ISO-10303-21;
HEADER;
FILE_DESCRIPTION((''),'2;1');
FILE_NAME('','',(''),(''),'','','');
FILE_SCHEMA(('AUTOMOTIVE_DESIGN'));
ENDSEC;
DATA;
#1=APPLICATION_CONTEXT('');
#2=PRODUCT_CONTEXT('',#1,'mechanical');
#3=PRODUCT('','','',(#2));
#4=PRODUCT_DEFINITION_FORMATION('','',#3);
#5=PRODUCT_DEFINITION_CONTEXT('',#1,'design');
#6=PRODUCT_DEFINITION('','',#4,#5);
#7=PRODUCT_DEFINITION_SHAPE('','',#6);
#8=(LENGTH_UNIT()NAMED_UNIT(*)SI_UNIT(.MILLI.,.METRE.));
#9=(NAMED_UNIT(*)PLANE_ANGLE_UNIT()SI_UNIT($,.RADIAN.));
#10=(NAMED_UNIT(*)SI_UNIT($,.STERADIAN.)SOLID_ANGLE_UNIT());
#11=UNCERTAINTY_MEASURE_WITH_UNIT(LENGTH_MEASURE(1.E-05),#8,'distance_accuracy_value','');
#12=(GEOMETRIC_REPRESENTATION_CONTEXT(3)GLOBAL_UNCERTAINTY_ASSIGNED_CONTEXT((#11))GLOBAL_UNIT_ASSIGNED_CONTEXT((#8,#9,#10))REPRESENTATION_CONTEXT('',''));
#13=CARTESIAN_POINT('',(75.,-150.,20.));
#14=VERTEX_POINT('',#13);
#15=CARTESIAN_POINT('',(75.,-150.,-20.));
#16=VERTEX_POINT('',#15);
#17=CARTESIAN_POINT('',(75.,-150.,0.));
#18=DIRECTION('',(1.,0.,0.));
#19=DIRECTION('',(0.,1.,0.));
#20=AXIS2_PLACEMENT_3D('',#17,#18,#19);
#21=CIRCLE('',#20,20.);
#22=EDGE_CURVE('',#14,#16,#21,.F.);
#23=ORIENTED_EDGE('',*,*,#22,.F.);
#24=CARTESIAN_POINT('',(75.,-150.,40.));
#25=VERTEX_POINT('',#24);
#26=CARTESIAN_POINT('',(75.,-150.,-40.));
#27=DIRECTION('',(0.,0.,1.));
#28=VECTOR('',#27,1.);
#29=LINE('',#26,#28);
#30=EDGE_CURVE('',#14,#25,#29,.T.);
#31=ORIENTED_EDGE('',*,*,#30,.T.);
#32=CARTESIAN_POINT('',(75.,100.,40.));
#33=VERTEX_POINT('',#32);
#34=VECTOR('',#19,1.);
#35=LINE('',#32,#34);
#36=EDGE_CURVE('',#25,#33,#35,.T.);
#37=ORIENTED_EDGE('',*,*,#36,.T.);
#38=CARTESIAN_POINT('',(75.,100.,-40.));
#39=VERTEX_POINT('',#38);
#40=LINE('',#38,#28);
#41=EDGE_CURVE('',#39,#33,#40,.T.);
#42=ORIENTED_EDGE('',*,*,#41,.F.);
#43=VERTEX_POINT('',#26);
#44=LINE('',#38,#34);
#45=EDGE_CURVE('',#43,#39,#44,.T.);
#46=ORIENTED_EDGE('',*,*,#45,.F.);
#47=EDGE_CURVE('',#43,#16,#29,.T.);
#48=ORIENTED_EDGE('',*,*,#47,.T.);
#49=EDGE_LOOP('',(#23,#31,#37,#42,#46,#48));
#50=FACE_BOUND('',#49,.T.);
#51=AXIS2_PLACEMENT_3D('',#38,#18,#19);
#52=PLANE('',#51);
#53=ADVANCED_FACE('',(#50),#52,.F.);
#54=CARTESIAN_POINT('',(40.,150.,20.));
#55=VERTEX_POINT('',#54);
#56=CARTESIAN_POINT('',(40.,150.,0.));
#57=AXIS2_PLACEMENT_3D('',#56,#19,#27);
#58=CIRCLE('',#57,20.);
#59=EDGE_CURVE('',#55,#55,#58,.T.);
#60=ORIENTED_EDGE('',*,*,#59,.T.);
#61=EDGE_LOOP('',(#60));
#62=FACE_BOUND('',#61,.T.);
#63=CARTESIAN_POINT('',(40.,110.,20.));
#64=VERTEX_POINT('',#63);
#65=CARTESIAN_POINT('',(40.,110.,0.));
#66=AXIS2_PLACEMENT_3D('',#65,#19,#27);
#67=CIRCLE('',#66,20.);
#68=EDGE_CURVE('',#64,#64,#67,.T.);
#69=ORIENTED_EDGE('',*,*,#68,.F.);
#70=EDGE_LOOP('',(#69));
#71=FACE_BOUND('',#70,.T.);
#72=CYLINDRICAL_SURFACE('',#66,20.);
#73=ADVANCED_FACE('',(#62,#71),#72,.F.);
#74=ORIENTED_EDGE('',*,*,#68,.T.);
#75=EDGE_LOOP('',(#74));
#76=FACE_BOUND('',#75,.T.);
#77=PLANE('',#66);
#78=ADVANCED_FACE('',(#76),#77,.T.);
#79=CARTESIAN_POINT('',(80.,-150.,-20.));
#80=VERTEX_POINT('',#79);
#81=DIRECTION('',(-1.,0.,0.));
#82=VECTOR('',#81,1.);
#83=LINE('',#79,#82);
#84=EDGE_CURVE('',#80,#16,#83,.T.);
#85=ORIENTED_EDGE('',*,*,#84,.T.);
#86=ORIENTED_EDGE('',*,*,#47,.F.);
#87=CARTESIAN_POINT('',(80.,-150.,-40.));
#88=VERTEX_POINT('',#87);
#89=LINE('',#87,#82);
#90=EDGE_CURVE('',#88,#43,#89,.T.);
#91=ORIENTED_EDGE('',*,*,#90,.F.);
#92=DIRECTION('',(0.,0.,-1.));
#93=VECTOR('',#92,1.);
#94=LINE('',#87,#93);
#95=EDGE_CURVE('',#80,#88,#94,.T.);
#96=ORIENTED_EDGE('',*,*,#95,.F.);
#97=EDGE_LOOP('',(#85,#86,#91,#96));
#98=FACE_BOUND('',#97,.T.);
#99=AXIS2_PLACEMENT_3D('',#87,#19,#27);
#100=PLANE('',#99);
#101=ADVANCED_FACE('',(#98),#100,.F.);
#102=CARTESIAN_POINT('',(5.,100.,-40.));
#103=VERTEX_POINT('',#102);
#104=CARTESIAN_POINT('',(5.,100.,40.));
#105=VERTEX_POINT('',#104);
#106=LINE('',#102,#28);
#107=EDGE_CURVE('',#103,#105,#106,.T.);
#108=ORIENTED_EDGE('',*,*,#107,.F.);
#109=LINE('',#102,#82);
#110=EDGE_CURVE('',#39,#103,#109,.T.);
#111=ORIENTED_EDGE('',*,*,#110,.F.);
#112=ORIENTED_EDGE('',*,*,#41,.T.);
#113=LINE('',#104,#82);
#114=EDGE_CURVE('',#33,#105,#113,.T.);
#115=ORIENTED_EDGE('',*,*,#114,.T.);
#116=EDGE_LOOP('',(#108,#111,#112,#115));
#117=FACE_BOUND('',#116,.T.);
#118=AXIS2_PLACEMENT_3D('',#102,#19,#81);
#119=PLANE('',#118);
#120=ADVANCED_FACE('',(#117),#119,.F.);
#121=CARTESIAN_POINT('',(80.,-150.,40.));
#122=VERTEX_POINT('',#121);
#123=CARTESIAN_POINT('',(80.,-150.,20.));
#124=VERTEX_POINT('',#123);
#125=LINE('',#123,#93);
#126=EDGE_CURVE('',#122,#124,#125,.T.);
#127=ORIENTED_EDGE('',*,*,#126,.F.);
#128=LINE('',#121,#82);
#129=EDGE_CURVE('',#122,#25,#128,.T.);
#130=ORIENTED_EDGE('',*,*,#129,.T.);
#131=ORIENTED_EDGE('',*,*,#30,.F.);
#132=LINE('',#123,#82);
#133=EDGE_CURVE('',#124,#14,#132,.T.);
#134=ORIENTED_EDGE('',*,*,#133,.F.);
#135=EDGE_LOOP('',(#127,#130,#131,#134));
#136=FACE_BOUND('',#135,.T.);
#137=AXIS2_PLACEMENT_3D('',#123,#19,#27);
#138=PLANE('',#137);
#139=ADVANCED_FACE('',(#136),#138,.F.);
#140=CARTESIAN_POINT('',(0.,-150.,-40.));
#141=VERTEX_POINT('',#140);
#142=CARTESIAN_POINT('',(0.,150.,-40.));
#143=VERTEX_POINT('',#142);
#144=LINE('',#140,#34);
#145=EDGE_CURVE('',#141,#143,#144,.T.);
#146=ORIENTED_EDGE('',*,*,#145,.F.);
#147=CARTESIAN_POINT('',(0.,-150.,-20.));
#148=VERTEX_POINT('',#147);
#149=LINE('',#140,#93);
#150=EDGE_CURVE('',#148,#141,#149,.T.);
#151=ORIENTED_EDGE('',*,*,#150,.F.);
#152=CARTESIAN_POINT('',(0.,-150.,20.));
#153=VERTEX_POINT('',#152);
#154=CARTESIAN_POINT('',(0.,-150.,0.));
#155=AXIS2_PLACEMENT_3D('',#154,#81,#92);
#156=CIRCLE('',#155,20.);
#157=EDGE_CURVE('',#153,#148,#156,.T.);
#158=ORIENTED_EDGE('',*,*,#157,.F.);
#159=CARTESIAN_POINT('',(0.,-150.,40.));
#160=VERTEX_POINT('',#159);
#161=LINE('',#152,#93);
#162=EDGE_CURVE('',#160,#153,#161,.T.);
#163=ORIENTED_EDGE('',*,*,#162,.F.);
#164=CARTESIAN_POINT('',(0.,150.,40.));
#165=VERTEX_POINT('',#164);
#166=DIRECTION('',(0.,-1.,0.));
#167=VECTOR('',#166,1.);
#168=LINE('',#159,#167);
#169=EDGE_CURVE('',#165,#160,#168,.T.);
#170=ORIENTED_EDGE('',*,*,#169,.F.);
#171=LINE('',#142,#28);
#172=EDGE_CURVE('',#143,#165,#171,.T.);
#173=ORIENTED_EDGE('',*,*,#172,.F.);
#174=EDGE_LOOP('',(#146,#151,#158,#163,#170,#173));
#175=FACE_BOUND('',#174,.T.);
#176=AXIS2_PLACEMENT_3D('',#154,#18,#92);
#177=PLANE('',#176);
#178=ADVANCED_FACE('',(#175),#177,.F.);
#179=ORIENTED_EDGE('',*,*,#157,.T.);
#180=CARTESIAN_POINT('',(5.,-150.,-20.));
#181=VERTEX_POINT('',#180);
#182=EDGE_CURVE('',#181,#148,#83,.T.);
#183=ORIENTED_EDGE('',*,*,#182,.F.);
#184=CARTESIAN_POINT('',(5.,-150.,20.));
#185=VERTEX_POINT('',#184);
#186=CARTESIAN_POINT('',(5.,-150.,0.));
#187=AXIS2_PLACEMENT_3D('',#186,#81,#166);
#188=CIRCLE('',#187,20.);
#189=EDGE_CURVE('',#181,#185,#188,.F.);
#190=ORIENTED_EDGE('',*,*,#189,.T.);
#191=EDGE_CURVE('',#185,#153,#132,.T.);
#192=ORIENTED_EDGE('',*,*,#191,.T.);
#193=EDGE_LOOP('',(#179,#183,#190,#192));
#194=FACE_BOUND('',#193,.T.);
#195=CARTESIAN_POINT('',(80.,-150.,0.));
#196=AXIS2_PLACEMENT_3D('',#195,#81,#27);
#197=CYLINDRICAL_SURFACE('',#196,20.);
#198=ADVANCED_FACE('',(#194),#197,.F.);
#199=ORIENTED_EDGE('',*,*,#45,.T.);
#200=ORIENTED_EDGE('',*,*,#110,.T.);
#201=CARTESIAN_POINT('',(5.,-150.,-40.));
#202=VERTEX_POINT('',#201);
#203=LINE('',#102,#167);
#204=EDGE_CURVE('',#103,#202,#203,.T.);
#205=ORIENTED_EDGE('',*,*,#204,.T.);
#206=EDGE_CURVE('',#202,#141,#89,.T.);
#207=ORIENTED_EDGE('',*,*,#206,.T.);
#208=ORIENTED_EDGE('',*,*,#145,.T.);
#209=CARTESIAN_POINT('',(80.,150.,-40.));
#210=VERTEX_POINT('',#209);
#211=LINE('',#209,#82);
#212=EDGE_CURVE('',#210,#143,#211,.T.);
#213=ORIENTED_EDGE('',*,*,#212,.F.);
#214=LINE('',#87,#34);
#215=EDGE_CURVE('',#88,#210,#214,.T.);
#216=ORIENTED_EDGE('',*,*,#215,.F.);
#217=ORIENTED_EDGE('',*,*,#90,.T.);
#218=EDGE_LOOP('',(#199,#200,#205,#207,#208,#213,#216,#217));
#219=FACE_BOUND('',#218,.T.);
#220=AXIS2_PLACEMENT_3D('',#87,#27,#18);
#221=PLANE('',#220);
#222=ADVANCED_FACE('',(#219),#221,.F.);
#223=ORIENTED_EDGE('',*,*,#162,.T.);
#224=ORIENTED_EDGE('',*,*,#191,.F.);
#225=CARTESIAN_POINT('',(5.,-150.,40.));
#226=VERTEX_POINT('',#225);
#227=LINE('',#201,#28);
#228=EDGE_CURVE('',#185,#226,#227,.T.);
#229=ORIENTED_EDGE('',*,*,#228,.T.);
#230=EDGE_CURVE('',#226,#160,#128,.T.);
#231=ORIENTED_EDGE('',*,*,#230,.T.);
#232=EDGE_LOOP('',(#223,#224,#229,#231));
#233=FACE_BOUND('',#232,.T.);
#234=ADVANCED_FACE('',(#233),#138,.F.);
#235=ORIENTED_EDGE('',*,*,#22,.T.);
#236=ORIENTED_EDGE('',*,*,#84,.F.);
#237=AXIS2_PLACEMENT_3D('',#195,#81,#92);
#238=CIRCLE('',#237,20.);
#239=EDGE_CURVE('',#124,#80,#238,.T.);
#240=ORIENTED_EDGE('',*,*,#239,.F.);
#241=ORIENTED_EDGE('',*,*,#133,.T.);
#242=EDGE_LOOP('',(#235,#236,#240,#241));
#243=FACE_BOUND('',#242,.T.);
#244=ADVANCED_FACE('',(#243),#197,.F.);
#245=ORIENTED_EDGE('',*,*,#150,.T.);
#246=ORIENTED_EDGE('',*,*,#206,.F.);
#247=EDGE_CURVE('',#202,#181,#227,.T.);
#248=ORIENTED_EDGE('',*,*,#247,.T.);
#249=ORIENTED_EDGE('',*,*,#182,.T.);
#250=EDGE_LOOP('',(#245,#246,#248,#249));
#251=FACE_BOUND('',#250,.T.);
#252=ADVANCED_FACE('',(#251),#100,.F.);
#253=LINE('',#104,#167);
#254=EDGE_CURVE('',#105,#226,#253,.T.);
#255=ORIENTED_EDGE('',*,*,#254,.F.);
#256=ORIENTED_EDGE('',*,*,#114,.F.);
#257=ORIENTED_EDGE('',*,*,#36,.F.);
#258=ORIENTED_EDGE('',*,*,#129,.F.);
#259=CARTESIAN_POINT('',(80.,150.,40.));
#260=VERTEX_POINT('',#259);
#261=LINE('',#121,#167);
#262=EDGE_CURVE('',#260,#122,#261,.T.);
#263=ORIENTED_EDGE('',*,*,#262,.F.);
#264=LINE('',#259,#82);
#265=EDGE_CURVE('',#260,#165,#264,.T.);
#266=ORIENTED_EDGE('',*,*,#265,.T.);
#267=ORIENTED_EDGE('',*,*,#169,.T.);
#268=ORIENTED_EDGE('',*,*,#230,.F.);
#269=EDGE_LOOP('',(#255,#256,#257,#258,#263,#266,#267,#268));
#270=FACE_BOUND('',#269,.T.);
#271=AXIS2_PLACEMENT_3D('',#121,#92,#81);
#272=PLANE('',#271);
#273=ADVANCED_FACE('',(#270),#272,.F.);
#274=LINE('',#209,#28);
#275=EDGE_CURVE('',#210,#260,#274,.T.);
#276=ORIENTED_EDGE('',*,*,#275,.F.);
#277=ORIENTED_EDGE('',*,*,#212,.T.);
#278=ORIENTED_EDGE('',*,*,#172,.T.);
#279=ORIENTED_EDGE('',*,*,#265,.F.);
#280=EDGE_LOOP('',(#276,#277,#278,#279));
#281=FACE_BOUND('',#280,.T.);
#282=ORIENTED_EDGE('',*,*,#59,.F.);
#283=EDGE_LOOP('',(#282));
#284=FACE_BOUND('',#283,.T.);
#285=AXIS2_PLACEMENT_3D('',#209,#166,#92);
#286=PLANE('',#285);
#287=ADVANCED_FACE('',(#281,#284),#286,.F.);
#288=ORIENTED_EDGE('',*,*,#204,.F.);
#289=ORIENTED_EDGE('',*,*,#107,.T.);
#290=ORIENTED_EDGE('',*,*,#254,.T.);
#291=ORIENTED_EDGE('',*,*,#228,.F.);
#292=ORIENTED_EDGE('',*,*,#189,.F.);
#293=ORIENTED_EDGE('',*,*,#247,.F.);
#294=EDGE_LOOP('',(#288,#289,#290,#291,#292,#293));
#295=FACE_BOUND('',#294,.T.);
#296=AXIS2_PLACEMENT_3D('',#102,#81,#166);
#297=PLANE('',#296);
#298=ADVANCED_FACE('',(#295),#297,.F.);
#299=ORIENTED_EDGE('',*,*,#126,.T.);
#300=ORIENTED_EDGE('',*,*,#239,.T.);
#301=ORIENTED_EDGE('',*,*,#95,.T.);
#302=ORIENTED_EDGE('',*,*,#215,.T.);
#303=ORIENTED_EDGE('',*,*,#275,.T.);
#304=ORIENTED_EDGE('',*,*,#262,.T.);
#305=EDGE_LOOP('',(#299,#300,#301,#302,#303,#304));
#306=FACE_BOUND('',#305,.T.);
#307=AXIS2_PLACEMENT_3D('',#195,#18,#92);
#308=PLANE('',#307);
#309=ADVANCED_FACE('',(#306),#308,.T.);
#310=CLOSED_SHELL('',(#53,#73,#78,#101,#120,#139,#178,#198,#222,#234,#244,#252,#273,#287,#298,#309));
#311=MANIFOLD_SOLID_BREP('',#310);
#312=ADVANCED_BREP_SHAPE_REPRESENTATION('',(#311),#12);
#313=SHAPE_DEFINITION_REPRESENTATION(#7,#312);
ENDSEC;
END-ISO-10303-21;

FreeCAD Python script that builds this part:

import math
import FreeCAD as App
import Part
import Sketcher

V = App.Vector

doc = App.newDocument("Part")
params = doc.addObject("Spreadsheet::Sheet", "Params")
for row, (alias, value) in enumerate([
    ("sketch1_radius", "20 mm"),
    ("sketch1_width", "300 mm"),
    ("sketch1_height", "20 mm"),
    ("pad1_length", "80 mm"),
    ("sketch2_width", "70 mm"),
    ("sketch2_height", "250 mm"),
    ("sketch3_diameter", "40 mm"),
    ("pocket2_length", "40 mm"),
], start=1):
    params.set(f"A{row}", alias)
    params.set(f"B{row}", "=" + value)
    params.setAlias(f"B{row}", alias)

body = doc.addObject("PartDesign::Body", "Body")

# Sketch on YZ plane
sketch1 = body.newObject("Sketcher::SketchObject", "Sketch")
sketch1.AttachmentSupport = (doc.getObject("YZ_Plane"), [""])
sketch1.MapMode = "FlatFace"
sketch1.addGeometry([
    Part.LineSegment(V(-150, 40, 0), V(-150, 20, 0)),  # 0
    Part.ArcOfCircle(Part.Circle(V(-150, 0, 0), V(0, 0, 1), 20), math.radians(-90), math.radians(90)),  # 1
    Part.LineSegment(V(-150, -20, 0), V(-150, -40, 0)),  # 2
    Part.LineSegment(V(-150, -40, 0), V(150, -40, 0)),  # 3
    Part.LineSegment(V(150, -40, 0), V(150, 40, 0)),  # 4
    Part.LineSegment(V(150, 40, 0), V(-150, 40, 0)),  # 5
], False)
sketch1.addConstraint([
    Sketcher.Constraint("Coincident", 0, 2, 1, 2),
    Sketcher.Constraint("Coincident", 1, 1, 2, 1),
    Sketcher.Constraint("Coincident", 2, 2, 3, 1),
    Sketcher.Constraint("Coincident", 3, 2, 4, 1),
    Sketcher.Constraint("Coincident", 4, 2, 5, 1),
    Sketcher.Constraint("Coincident", 5, 2, 0, 1),
    Sketcher.Constraint("Vertical", 0),
    Sketcher.Constraint("Vertical", 2),
    Sketcher.Constraint("Horizontal", 3),
    Sketcher.Constraint("Vertical", 4),
    Sketcher.Constraint("Horizontal", 5),
    Sketcher.Constraint("Symmetric", 2, 2, 4, 2, -1, 1),
    Sketcher.Constraint("Symmetric", 0, 2, 1, 1, -1),
    Sketcher.Constraint("Vertical", 1, 3, 0, 2),
    Sketcher.Constraint("Radius", 1, 20.0),
    Sketcher.Constraint("DistanceX", 3, 1, 3, 2, 300.0),
    Sketcher.Constraint("DistanceY", 0, 2, 0, 1, 20.0),
])
sketch1.setExpression("Constraints[14]", "Params.sketch1_radius")
sketch1.setExpression("Constraints[15]", "Params.sketch1_width")
sketch1.setExpression("Constraints[16]", "Params.sketch1_height")
pad1 = body.newObject("PartDesign::Pad", "Pad")
pad1.Profile = sketch1
pad1.setExpression("Length", "Params.pad1_length")

# Sketch on XY plane
sketch2 = body.newObject("Sketcher::SketchObject", "Sketch001")
sketch2.AttachmentSupport = (doc.getObject("XY_Plane"), [""])
sketch2.MapMode = "FlatFace"
sketch2.AttachmentOffset = App.Placement(V(0, 0, 40), App.Rotation())
sketch2.addGeometry([
    Part.LineSegment(V(5, 100, 0), V(5, -150, 0)),
    Part.LineSegment(V(5, -150, 0), V(75, -150, 0)),
    Part.LineSegment(V(75, -150, 0), V(75, 100, 0)),
    Part.LineSegment(V(75, 100, 0), V(5, 100, 0)),
], False)
sketch2.addConstraint([
    Sketcher.Constraint("Coincident", 0, 2, 1, 1),
    Sketcher.Constraint("Coincident", 1, 2, 2, 1),
    Sketcher.Constraint("Coincident", 2, 2, 3, 1),
    Sketcher.Constraint("Coincident", 3, 2, 0, 1),
    Sketcher.Constraint("Vertical", 0),
    Sketcher.Constraint("Horizontal", 1),
    Sketcher.Constraint("Vertical", 2),
    Sketcher.Constraint("Horizontal", 3),
    Sketcher.Constraint("DistanceX", 1, 1, 1, 2, 70.0),
    Sketcher.Constraint("DistanceY", 0, 2, 0, 1, 250.0),
    Sketcher.Constraint("DistanceX", -1, 1, 0, 2, 5.0),
    Sketcher.Constraint("DistanceY", 0, 2, -1, 1, 150.0),
])
sketch2.setExpression("Constraints[8]", "Params.sketch2_width")
sketch2.setExpression("Constraints[9]", "Params.sketch2_height")
pocket1 = body.newObject("PartDesign::Pocket", "Pocket")
pocket1.Profile = sketch2
pocket1.Type = "ThroughAll"

# Sketch on XZ plane
sketch3 = body.newObject("Sketcher::SketchObject", "Sketch002")
sketch3.AttachmentSupport = (doc.getObject("XZ_Plane"), [""])
sketch3.MapMode = "FlatFace"
sketch3.AttachmentOffset = App.Placement(V(0, 0, -150), App.Rotation())
sketch3.addGeometry(Part.Circle(V(40, 0, 0), V(0, 0, 1), 20), False)
sketch3.addConstraint([
    Sketcher.Constraint("PointOnObject", 0, 3, -1),
    Sketcher.Constraint("Diameter", 0, 40.0),
    Sketcher.Constraint("DistanceX", -1, 1, 0, 3, 40.0),
])
sketch3.setExpression("Constraints[1]", "Params.sketch3_diameter")
pocket2 = body.newObject("PartDesign::Pocket", "Pocket001")
pocket2.Profile = sketch3
pocket2.setExpression("Length", "Params.pocket2_length")
pocket2.Reversed = True

doc.recompute()
